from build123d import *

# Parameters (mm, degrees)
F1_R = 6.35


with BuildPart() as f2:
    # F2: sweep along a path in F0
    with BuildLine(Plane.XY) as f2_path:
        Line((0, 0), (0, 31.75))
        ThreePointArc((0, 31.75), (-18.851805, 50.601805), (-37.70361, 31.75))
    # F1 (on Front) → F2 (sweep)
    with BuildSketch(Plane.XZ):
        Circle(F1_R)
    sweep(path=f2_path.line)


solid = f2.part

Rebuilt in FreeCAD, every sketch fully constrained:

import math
import FreeCAD as App
import Part
import Sketcher

V = App.Vector
Q = App.Units.Quantity

doc = App.newDocument("Part")
body = doc.addObject("PartDesign::Body", "Body")

# Sketch on XZ plane
sketch1 = body.newObject("Sketcher::SketchObject", "Sketch")
sketch1.AttachmentSupport = (doc.getObject("XZ_Plane"), [""])
sketch1.MapMode = "FlatFace"
sketch1.addGeometry(Part.Circle(V(0, 0, 0), V(0, 0, 1), 6.35), False)
sketch1.addConstraint(Sketcher.Constraint("Coincident", 0, 3, -1, 1))
sketch1.addConstraint(Sketcher.Constraint("Diameter", 0, Q("0.5 in")))

# Sketch on XY plane
sketch2 = body.newObject("Sketcher::SketchObject", "Sketch001")
sketch2.AttachmentSupport = (doc.getObject("XY_Plane"), [""])
sketch2.MapMode = "FlatFace"
sketch2.addGeometry(Part.LineSegment(V(0, 0, 0), V(0, 31.75, 0)), False)
sketch2.addGeometry(Part.ArcOfCircle(Part.Circle(V(-18.851805, 31.75, 0), V(0, 0, 1), 18.851805), math.radians(0), math.radians(180)), False)
sketch2.addConstraint(Sketcher.Constraint("Tangent", 0, 2, 1, 1))
sketch2.addConstraint(Sketcher.Constraint("Vertical", 0))
sketch2.addConstraint(Sketcher.Constraint("Coincident", 0, 1, -1, 1))
sketch2.addConstraint(Sketcher.Constraint("Horizontal", 0, 2, 1, 2))
sketch2.addConstraint(Sketcher.Constraint("DistanceY", 0, 1, 0, 2, Q("1.25 in")))
sketch2.addConstraint(Sketcher.Constraint("Radius", 1, Q("18.851805 mm")))
doc.recompute()

additivepipe = body.newObject("PartDesign::AdditivePipe", "AdditivePipe")
additivepipe.Profile = sketch1
additivepipe.Spine = (sketch2, ["Edge1", "Edge2"])

doc.recompute()
